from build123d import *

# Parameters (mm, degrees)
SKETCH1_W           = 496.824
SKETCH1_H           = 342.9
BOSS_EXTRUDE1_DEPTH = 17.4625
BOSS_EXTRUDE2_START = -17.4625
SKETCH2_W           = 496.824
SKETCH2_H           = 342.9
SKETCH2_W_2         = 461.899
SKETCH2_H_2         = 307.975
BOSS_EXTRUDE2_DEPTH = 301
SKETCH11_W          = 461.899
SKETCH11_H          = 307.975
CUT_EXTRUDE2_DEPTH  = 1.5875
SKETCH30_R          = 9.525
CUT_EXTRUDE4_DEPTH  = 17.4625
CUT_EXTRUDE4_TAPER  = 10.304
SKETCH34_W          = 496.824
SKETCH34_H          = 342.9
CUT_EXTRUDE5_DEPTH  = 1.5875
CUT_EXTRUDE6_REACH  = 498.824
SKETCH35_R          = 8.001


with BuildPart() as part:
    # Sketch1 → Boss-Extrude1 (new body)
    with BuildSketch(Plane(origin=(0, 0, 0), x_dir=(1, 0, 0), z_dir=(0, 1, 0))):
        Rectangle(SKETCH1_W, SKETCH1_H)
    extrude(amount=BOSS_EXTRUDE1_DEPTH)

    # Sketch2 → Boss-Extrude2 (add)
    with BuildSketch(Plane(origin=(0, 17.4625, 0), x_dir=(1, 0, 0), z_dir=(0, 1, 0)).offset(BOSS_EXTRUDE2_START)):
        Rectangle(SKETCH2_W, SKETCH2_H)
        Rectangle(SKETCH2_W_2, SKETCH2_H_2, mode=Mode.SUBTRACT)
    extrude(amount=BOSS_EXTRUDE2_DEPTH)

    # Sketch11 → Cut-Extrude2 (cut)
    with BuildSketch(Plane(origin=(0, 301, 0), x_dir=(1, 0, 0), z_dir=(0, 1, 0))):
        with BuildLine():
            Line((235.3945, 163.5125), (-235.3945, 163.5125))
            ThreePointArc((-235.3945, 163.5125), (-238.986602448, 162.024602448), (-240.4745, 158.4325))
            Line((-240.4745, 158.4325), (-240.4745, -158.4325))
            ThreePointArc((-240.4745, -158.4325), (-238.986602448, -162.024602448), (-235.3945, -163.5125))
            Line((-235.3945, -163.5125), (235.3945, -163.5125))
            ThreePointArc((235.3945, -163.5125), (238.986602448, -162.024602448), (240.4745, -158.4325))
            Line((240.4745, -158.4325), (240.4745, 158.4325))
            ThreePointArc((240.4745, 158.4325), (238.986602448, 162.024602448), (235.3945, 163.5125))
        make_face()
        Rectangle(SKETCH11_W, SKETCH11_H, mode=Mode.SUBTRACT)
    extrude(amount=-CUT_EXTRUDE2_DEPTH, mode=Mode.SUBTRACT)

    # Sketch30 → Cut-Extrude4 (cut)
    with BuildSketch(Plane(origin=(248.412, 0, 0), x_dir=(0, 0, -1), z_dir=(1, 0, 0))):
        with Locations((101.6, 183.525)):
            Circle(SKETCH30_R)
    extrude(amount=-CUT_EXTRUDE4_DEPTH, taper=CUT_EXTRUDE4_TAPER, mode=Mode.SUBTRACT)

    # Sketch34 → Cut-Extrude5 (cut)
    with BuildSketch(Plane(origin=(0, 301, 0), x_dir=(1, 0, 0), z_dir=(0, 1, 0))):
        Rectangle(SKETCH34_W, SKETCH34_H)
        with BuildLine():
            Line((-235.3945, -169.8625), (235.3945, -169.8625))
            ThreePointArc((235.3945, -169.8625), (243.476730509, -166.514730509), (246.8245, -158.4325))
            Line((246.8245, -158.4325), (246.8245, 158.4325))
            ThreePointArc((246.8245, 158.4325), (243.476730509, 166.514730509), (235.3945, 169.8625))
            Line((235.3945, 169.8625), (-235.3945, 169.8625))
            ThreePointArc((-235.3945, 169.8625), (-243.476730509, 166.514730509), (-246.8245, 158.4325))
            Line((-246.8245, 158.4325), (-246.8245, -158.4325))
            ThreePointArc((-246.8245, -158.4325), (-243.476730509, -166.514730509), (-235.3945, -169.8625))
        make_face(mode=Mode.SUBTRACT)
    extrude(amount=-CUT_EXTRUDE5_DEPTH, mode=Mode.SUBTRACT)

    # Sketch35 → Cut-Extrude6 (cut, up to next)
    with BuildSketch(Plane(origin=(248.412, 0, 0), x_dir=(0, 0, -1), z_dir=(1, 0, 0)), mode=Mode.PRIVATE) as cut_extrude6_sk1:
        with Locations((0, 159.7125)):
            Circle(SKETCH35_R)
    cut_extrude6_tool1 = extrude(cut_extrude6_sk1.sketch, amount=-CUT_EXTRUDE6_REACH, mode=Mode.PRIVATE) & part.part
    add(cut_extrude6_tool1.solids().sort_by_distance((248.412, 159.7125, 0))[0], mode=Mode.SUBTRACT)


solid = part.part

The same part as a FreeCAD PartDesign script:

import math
import FreeCAD as App
import Part
import Sketcher

V = App.Vector
Q = App.Units.Quantity

doc = App.newDocument("Part")
body = doc.addObject("PartDesign::Body", "Body")

sketch1 = doc.addObject("Sketcher::SketchObject", "Sketch")
body.addObject(sketch1)
sketch1.AttachmentSupport = (doc.XZ_Plane, [""])
sketch1.MapMode = "FlatFace"
sketch1.addGeometry(Part.LineSegment(V(-248, -171, 0), V(-248, 171, 0)), False)
sketch1.addGeometry(Part.LineSegment(V(-248, 171, 0), V(248, 171, 0)), False)
sketch1.addGeometry(Part.LineSegment(V(248, 171, 0), V(248, -171, 0)), False)
sketch1.addGeometry(Part.LineSegment(V(248, -171, 0), V(-248, -171, 0)), False)
sketch1.addConstraint(Sketcher.Constraint("Coincident", 0, 2, 1, 1))
sketch1.addConstraint(Sketcher.Constraint("Coincident", 1, 2, 2, 1))
sketch1.addConstraint(Sketcher.Constraint("Coincident", 2, 2, 3, 1))
sketch1.addConstraint(Sketcher.Constraint("Coincident", 3, 2, 0, 1))
sketch1.addConstraint(Sketcher.Constraint("Vertical", 0))
sketch1.addConstraint(Sketcher.Constraint("Horizontal", 1))
sketch1.addConstraint(Sketcher.Constraint("Vertical", 2))
sketch1.addConstraint(Sketcher.Constraint("Horizontal", 3))
sketch1.addConstraint(Sketcher.Constraint("Symmetric", 0, 2, 2, 2, -1, 1))
sketch1.addConstraint(Sketcher.Constraint("DistanceY", 0, 1, 0, 2, Q("13.5 in")))
sketch1.addConstraint(Sketcher.Constraint("DistanceX", 1, 1, 1, 2, Q("19.56 in")))
pad1 = doc.addObject("PartDesign::Pad", "Pad")
body.addObject(pad1)
pad1.Profile = sketch1
pad1.Length = Q("0.6875 in")
pad1.Reversed = True

sketch2 = doc.addObject("Sketcher::SketchObject", "Sketch001")
body.addObject(sketch2)
sketch2.AttachmentSupport = (doc.XZ_Plane, [""])
sketch2.MapMode = "FlatFace"
sketch2.addGeometry(Part.LineSegment(V(-248, -171, 0), V(-248, 171, 0)), False)
sketch2.addGeometry(Part.LineSegment(V(-248, 171, 0), V(248, 171, 0)), False)
sketch2.addGeometry(Part.LineSegment(V(248, 171, 0), V(248, -171, 0)), False)
sketch2.addGeometry(Part.LineSegment(V(248, -171, 0), V(-248, -171, 0)), False)
sketch2.addGeometry(Part.LineSegment(V(231, 154, 0), V(-231, 154, 0)), False)
sketch2.addGeometry(Part.LineSegment(V(-231, 154, 0), V(-231, -154, 0)), False)
sketch2.addGeometry(Part.LineSegment(V(-231, -154, 0), V(231, -154, 0)), False)
sketch2.addGeometry(Part.LineSegment(V(231, -154, 0), V(231, 154, 0)), False)
sketch2.addConstraint(Sketcher.Constraint("Coincident", 0, 2, 1, 1))
sketch2.addConstraint(Sketcher.Constraint("Coincident", 1, 2, 2, 1))
sketch2.addConstraint(Sketcher.Constraint("Coincident", 2, 2, 3, 1))
sketch2.addConstraint(Sketcher.Constraint("Coincident", 3, 2, 0, 1))
sketch2.addConstraint(Sketcher.Constraint("Coincident", 4, 2, 5, 1))
sketch2.addConstraint(Sketcher.Constraint("Coincident", 5, 2, 6, 1))
sketch2.addConstraint(Sketcher.Constraint("Coincident", 6, 2, 7, 1))
sketch2.addConstraint(Sketcher.Constraint("Coincident", 7, 2, 4, 1))
sketch2.addConstraint(Sketcher.Constraint("Vertical", 0))
sketch2.addConstraint(Sketcher.Constraint("Horizontal", 1))
sketch2.addConstraint(Sketcher.Constraint("Vertical", 2))
sketch2.addConstraint(Sketcher.Constraint("Horizontal", 3))
sketch2.addConstraint(Sketcher.Constraint("Horizontal", 4))
sketch2.addConstraint(Sketcher.Constraint("Vertical", 5))
sketch2.addConstraint(Sketcher.Constraint("Horizontal", 6))
sketch2.addConstraint(Sketcher.Constraint("Vertical", 7))
sketch2.addConstraint(Sketcher.Constraint("Symmetric", 0, 2, 2, 2, -1, 1))
sketch2.addConstraint(Sketcher.Constraint("Symmetric", 4, 2, 6, 2, -1, 1))
sketch2.addConstraint(Sketcher.Constraint("DistanceY", 0, 1, 0, 2, Q("13.5 in")))
sketch2.addConstraint(Sketcher.Constraint("DistanceX", 1, 1, 1, 2, Q("19.56 in")))
sketch2.addConstraint(Sketcher.Constraint("DistanceX", 4, 2, 4, 1, Q("18.185 in")))
sketch2.addConstraint(Sketcher.Constraint("DistanceY", 5, 2, 5, 1, Q("12.125 in")))
pad2 = doc.addObject("PartDesign::Pad", "Pad001")
body.addObject(pad2)
pad2.Profile = sketch2
pad2.Length = 301
pad2.Reversed = True

sketch3 = doc.addObject("Sketcher::SketchObject", "Sketch002")
body.addObject(sketch3)
sketch3.AttachmentSupport = (doc.XZ_Plane, [""])
sketch3.MapMode = "FlatFace"
sketch3.AttachmentOffset = App.Placement(V(0, 0, -301), App.Rotation())
sketch3.addGeometry(Part.LineSegment(V(235, -164, 0), V(-235, -164, 0)), False)
sketch3.addGeometry(Part.ArcOfCircle(Part.Circle(V(-235, -158, 0), V(0, 0, 1), 5), math.radians(-180), math.radians(-90)), False)
sketch3.addGeometry(Part.LineSegment(V(-240, -158, 0), V(-240, 158, 0)), False)
sketch3.addGeometry(Part.ArcOfCircle(Part.Circle(V(-235, 158, 0), V(0, 0, 1), 5), math.radians(90), math.radians(180)), False)
sketch3.addGeometry(Part.LineSegment(V(-235, 164, 0), V(235, 164, 0)), False)
sketch3.addGeometry(Part.ArcOfCircle(Part.Circle(V(235, 158, 0), V(0, 0, 1), 5), math.radians(0), math.radians(90)), False)
sketch3.addGeometry(Part.LineSegment(V(240, 158, 0), V(240, -158, 0)), False)
sketch3.addGeometry(Part.ArcOfCircle(Part.Circle(V(235, -158, 0), V(0, 0, 1), 5), math.radians(-90), math.radians(0)), False)
sketch3.addGeometry(Part.LineSegment(V(231, 154, 0), V(-231, 154, 0)), False)
sketch3.addGeometry(Part.LineSegment(V(-231, 154, 0), V(-231, -154, 0)), False)
sketch3.addGeometry(Part.LineSegment(V(-231, -154, 0), V(231, -154, 0)), False)
sketch3.addGeometry(Part.LineSegment(V(231, -154, 0), V(231, 154, 0)), False)
sketch3.addConstraint(Sketcher.Constraint("Tangent", 0, 2, 1, 2))
sketch3.addConstraint(Sketcher.Constraint("Tangent", 1, 1, 2, 1))
sketch3.addConstraint(Sketcher.Constraint("Tangent", 2, 2, 3, 2))
sketch3.addConstraint(Sketcher.Constraint("Tangent", 3, 1, 4, 1))
sketch3.addConstraint(Sketcher.Constraint("Tangent", 4, 2, 5, 2))
sketch3.addConstraint(Sketcher.Constraint("Tangent", 5, 1, 6, 1))
sketch3.addConstraint(Sketcher.Constraint("Tangent", 6, 2, 7, 2))
sketch3.addConstraint(Sketcher.Constraint("Tangent", 7, 1, 0, 1))
sketch3.addConstraint(Sketcher.Constraint("Coincident", 8, 2, 9, 1))
sketch3.addConstraint(Sketcher.Constraint("Coincident", 9, 2, 10, 1))
sketch3.addConstraint(Sketcher.Constraint("Coincident", 10, 2, 11, 1))
sketch3.addConstraint(Sketcher.Constraint("Coincident", 11, 2, 8, 1))
sketch3.addConstraint(Sketcher.Constraint("Horizontal", 0))
sketch3.addConstraint(Sketcher.Constraint("Vertical", 2))
sketch3.addConstraint(Sketcher.Constraint("Horizontal", 4))
sketch3.addConstraint(Sketcher.Constraint("Vertical", 6))
sketch3.addConstraint(Sketcher.Constraint("Horizontal", 8))
sketch3.addConstraint(Sketcher.Constraint("Vertical", 9))
sketch3.addConstraint(Sketcher.Constraint("Horizontal", 10))
sketch3.addConstraint(Sketcher.Constraint("Vertical", 11))
sketch3.addConstraint(Sketcher.Constraint("Equal", 1, 3))
sketch3.addConstraint(Sketcher.Constraint("Equal", 3, 5))
sketch3.addConstraint(Sketcher.Constraint("Equal", 5, 7))
sketch3.addConstraint(Sketcher.Constraint("Symmetric", 1, 3, 5, 3, -1, 1))
sketch3.addConstraint(Sketcher.Constraint("Symmetric", 8, 2, 10, 2, -1, 1))
sketch3.addConstraint(Sketcher.Constraint("Radius", 1, Q("0.2 in")))
sketch3.addConstraint(Sketcher.Constraint("DistanceY", 1, 3, 8, 2, Q("12.3 in")))
sketch3.addConstraint(Sketcher.Constraint("DistanceX", 0, 2, 0, 1, Q("18.535 in")))
sketch3.addConstraint(Sketcher.Constraint("DistanceX", 8, 2, 8, 1, Q("18.185 in")))
sketch3.addConstraint(Sketcher.Constraint("DistanceY", 2, 1, 2, 2, Q("12.475 in")))
pocket1 = doc.addObject("PartDesign::Pocket", "Pocket")
body.addObject(pocket1)
pocket1.Profile = sketch3
pocket1.Length = Q("0.0625 in")
pocket1.Reversed = True

sketch4 = doc.addObject("Sketcher::SketchObject", "Sketch003")
body.addObject(sketch4)
sketch4.AttachmentSupport = (doc.YZ_Plane, [""])
sketch4.MapMode = "FlatFace"
sketch4.AttachmentOffset = App.Placement(V(0, 0, 9.78 * 25.4), App.Rotation())
sketch4.addGeometry(Part.Circle(V(184, -102, 0), V(0, 0, 1), 10), False)
sketch4.addConstraint(Sketcher.Constraint("Diameter", 0, Q("0.75 in")))
sketch4.addConstraint(Sketcher.Constraint("DistanceY", 0, 3, -1, 1, Q("4 in")))
sketch4.addConstraint(Sketcher.Constraint("DistanceX", -1, 1, 0, 3, Q("183.525 mm")))
pocket2 = doc.addObject("PartDesign::Pocket", "Pocket001")
body.addObject(pocket2)
pocket2.Profile = sketch4
pocket2.Length = Q("0.6875 in")
pocket2.TaperAngle = -10.304

sketch5 = doc.addObject("Sketcher::SketchObject", "Sketch004")
body.addObject(sketch5)
sketch5.AttachmentSupport = (doc.XZ_Plane, [""])
sketch5.MapMode = "FlatFace"
sketch5.AttachmentOffset = App.Placement(V(0, 0, -301), App.Rotation())
sketch5.addGeometry(Part.LineSegment(V(-248, -171, 0), V(-248, 171, 0)), False)
sketch5.addGeometry(Part.LineSegment(V(-248, 171, 0), V(248, 171, 0)), False)
sketch5.addGeometry(Part.LineSegment(V(248, 171, 0), V(248, -171, 0)), False)
sketch5.addGeometry(Part.LineSegment(V(248, -171, 0), V(-248, -171, 0)), False)
sketch5.addGeometry(Part.LineSegment(V(235, 170, 0), V(-235, 170, 0)), False)
sketch5.addGeometry(Part.ArcOfCircle(Part.Circle(V(-235, 158, 0), V(0, 0, 1), 11), math.radians(90), math.radians(180)), False)
sketch5.addGeometry(Part.LineSegment(V(-247, 158, 0), V(-247, -158, 0)), False)
sketch5.addGeometry(Part.ArcOfCircle(Part.Circle(V(-235, -158, 0), V(0, 0, 1), 11), math.radians(180), math.radians(270)), False)
sketch5.addGeometry(Part.LineSegment(V(-235, -170, 0), V(235, -170, 0)), False)
sketch5.addGeometry(Part.ArcOfCircle(Part.Circle(V(235, -158, 0), V(0, 0, 1), 11), math.radians(-90), math.radians(0)), False)
sketch5.addGeometry(Part.LineSegment(V(247, -158, 0), V(247, 158, 0)), False)
sketch5.addGeometry(Part.ArcOfCircle(Part.Circle(V(235, 158, 0), V(0, 0, 1), 11), math.radians(0), math.radians(90)), False)
sketch5.addConstraint(Sketcher.Constraint("Coincident", 0, 2, 1, 1))
sketch5.addConstraint(Sketcher.Constraint("Coincident", 1, 2, 2, 1))
sketch5.addConstraint(Sketcher.Constraint("Coincident", 2, 2, 3, 1))
sketch5.addConstraint(Sketcher.Constraint("Coincident", 3, 2, 0, 1))
sketch5.addConstraint(Sketcher.Constraint("Tangent", 4, 2, 5, 1))
sketch5.addConstraint(Sketcher.Constraint("Tangent", 5, 2, 6, 1))
sketch5.addConstraint(Sketcher.Constraint("Tangent", 6, 2, 7, 1))
sketch5.addConstraint(Sketcher.Constraint("Tangent", 7, 2, 8, 1))
sketch5.addConstraint(Sketcher.Constraint("Tangent", 8, 2, 9, 1))
sketch5.addConstraint(Sketcher.Constraint("Tangent", 9, 2, 10, 1))
sketch5.addConstraint(Sketcher.Constraint("Tangent", 10, 2, 11, 1))
sketch5.addConstraint(Sketcher.Constraint("Tangent", 11, 2, 4, 1))
sketch5.addConstraint(Sketcher.Constraint("Vertical", 0))
sketch5.addConstraint(Sketcher.Constraint("Horizontal", 1))
sketch5.addConstraint(Sketcher.Constraint("Vertical", 2))
sketch5.addConstraint(Sketcher.Constraint("Horizontal", 3))
sketch5.addConstraint(Sketcher.Constraint("Horizontal", 4))
sketch5.addConstraint(Sketcher.Constraint("Vertical", 6))
sketch5.addConstraint(Sketcher.Constraint("Horizontal", 8))
sketch5.addConstraint(Sketcher.Constraint("Vertical", 10))
sketch5.addConstraint(Sketcher.Constraint("Equal", 5, 7))
sketch5.addConstraint(Sketcher.Constraint("Equal", 7, 9))
sketch5.addConstraint(Sketcher.Constraint("Equal", 9, 11))
sketch5.addConstraint(Sketcher.Constraint("Symmetric", 5, 3, 9, 3, -1, 1))
sketch5.addConstraint(Sketcher.Constraint("Symmetric", 0, 2, 2, 2, -1, 1))
sketch5.addConstraint(Sketcher.Constraint("Radius", 5, Q("0.45 in")))
sketch5.addConstraint(Sketcher.Constraint("DistanceY", 0, 1, 0, 2, Q("13.5 in")))
sketch5.addConstraint(Sketcher.Constraint("DistanceX", 1, 1, 1, 2, Q("19.56 in")))
sketch5.addConstraint(Sketcher.Constraint("DistanceX", 4, 2, 4, 1, Q("18.535 in")))
sketch5.addConstraint(Sketcher.Constraint("DistanceY", 6, 2, 6, 1, Q("12.475 in")))
pocket3 = doc.addObject("PartDesign::Pocket", "Pocket002")
body.addObject(pocket3)
pocket3.Profile = sketch5
pocket3.Length = Q("0.0625 in")
pocket3.Reversed = True

sketch6 = doc.addObject("Sketcher::SketchObject", "Sketch005")
body.addObject(sketch6)
sketch6.AttachmentSupport = (doc.YZ_Plane, [""])
sketch6.MapMode = "FlatFace"
sketch6.AttachmentOffset = App.Placement(V(0, 0, 9.78 * 25.4), App.Rotation())
sketch6.addGeometry(Part.Circle(V(160, 0, 0), V(0, 0, 1), 8), False)
sketch6.addConstraint(Sketcher.Constraint("PointOnObject", 0, 3, -1))
sketch6.addConstraint(Sketcher.Constraint("Diameter", 0, Q("0.63 in")))
sketch6.addConstraint(Sketcher.Constraint("DistanceX", -1, 1, 0, 3, Q("159.7125 mm")))
pocket4 = doc.addObject("PartDesign::Pocket", "Pocket003")
body.addObject(pocket4)
pocket4.Profile = sketch6
pocket4.Type = "UpToFirst"

doc.recompute()
